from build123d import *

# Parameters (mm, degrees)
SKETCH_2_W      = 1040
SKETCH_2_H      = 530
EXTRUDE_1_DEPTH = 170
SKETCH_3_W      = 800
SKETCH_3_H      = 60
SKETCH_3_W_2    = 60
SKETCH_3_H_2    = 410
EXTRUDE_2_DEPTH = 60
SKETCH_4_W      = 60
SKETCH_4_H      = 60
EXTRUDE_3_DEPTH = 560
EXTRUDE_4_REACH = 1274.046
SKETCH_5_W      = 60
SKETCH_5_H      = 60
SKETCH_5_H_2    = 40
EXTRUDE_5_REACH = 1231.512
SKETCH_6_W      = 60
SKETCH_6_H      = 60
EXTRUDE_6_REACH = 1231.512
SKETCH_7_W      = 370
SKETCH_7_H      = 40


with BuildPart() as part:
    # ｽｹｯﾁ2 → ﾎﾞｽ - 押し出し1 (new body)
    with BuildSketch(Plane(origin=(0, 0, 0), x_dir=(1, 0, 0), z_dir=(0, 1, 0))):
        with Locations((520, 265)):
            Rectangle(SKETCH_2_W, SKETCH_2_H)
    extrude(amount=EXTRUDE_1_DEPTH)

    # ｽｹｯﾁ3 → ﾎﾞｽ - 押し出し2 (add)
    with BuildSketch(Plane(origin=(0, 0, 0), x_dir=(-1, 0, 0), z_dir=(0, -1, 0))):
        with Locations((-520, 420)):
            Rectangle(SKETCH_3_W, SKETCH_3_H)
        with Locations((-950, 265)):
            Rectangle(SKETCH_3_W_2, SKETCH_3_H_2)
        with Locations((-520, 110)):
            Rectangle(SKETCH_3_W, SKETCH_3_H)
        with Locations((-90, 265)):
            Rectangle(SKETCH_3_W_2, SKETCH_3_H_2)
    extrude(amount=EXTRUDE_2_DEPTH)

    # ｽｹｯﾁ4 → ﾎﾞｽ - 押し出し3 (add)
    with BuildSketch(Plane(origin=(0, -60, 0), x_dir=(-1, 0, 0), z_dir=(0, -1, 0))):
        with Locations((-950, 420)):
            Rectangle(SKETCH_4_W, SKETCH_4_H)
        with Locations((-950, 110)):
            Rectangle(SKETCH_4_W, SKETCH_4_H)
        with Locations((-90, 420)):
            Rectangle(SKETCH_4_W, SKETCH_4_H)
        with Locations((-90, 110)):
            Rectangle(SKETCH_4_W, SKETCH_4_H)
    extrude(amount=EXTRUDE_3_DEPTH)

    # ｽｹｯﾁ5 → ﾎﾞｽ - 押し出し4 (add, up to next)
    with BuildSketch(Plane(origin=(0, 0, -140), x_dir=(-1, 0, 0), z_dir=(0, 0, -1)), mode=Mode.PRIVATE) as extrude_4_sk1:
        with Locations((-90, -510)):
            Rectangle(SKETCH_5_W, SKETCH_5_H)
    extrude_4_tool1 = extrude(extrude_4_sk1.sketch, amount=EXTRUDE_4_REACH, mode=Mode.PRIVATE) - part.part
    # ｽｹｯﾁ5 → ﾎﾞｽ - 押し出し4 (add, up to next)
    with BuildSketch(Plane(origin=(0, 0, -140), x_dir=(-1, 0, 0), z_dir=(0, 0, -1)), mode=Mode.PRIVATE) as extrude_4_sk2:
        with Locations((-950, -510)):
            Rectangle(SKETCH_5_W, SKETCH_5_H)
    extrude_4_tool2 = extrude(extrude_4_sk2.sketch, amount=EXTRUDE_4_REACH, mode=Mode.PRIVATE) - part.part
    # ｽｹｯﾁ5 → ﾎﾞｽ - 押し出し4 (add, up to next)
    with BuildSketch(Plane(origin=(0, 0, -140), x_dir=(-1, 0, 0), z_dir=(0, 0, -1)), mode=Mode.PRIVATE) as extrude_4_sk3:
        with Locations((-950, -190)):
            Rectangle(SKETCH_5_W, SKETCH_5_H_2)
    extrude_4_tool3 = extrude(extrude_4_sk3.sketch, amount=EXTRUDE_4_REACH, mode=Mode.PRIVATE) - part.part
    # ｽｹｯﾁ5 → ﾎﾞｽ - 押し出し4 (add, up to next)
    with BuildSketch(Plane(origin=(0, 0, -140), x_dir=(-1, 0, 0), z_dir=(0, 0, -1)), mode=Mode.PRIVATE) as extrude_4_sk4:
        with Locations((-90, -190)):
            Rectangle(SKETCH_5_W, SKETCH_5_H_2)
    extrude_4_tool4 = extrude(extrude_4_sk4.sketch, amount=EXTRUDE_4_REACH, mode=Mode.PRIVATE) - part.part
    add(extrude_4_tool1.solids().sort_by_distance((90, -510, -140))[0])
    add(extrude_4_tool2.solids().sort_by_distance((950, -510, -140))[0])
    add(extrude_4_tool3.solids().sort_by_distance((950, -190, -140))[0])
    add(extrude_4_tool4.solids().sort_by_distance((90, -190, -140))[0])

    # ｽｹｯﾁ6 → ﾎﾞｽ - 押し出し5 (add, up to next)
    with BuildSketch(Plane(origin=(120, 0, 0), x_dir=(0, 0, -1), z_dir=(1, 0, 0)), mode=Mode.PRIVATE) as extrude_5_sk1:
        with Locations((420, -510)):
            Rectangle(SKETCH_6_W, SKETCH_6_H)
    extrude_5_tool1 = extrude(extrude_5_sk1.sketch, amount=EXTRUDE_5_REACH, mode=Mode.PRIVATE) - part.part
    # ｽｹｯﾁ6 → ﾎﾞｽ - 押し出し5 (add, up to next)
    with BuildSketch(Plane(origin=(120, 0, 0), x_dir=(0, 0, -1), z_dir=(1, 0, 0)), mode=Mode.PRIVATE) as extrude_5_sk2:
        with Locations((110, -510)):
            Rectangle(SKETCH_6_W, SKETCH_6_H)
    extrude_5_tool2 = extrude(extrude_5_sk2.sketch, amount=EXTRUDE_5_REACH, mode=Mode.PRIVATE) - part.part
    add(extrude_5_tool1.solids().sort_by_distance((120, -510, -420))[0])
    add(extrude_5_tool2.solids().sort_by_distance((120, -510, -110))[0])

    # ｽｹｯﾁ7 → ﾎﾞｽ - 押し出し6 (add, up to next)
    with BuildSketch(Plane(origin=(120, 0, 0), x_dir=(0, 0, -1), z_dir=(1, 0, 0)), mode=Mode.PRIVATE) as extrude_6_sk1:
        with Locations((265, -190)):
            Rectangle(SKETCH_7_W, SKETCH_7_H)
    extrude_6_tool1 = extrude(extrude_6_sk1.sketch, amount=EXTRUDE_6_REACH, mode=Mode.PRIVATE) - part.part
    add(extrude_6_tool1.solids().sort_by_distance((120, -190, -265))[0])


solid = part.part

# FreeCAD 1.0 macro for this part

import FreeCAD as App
import Part
import Sketcher
Q = App.Units.Quantity


def add_polygon(sketch, points):
    """Adds a closed chain of lines whose ends are joined by coincident constraints."""
    first, n = sketch.GeometryCount, len(points)
    for a, b in zip(points, points[1:] + points[:1]):
        sketch.addGeometry(Part.LineSegment(App.Vector(*a, 0), App.Vector(*b, 0)), False)
    for i in range(n):
        sketch.addConstraint(Sketcher.Constraint("Coincident", first + i, 2, first + (i + 1) % n, 1))

doc = App.newDocument("Part")
params = doc.addObject("Spreadsheet::Sheet", "Params")
for row, (alias, value) in enumerate([
    ("sketch1_width", "1040 mm"),
    ("sketch1_height", "530 mm"),
    ("pad1_length", "170 mm"),
    ("sketch2_width", "800 mm"),
    ("sketch2_width2", "60 mm"),
    ("sketch2_height", "20 mm"),
    ("sketch2_height2", "410 mm"),
    ("sketch2_height3", "250 mm"),
    ("pad2_length", "60 mm"),
    ("sketch3_width", "60 mm"),
    ("pad3_length", "560 mm"),
    ("sketch4_width", "60 mm"),
    ("sketch5_width", "60 mm"),
    ("sketch6_width", "60 mm"),
    ("sketch6_height", "40 mm"),
    ("sketch7_width", "60 mm"),
    ("sketch7_height", "40 mm"),
    ("sketch8_width", "60 mm"),
    ("sketch9_width", "60 mm"),
    ("sketch10_width", "40 mm"),
    ("sketch10_height", "370 mm"),
], start=1):
    params.set(f"A{row}", alias)
    params.set(f"B{row}", "=" + value)
    params.setAlias(f"B{row}", alias)

body = doc.addObject("PartDesign::Body", "Body")

sketch1 = body.newObject("Sketcher::SketchObject", "Sketch")
sketch1.AttachmentSupport = (doc.getObject("XZ_Plane"), [""])
sketch1.MapMode = "FlatFace"
add_polygon(sketch1, [(0, -530), (0, 0), (1040, 0), (1040, -530)])
sketch1.addConstraint([
    Sketcher.Constraint("Vertical", 0),
    Sketcher.Constraint("Horizontal", 1),
    Sketcher.Constraint("Vertical", 2),
    Sketcher.Constraint("Horizontal", 3),
    Sketcher.Constraint("Coincident", 0, 2, -1, 1),
    Sketcher.Constraint("DistanceX", 1, 1, 1, 2, Q("1040 mm")),
    Sketcher.Constraint("DistanceY", 0, 1, 0, 2, Q("530 mm")),
])
sketch1.setExpression("Constraints[9]", "Params.sketch1_width")
sketch1.setExpression("Constraints[10]", "Params.sketch1_height")
pad1 = body.newObject("PartDesign::Pad", "Pad")
pad1.Profile = sketch1
pad1.setExpression("Length", "Params.pad1_length")
pad1.Reversed = True

sketch2 = body.newObject("Sketcher::SketchObject", "Sketch001")
sketch2.AttachmentSupport = (doc.getObject("XZ_Plane"), [""])
sketch2.MapMode = "FlatFace"
add_polygon(sketch2, [(120, -450), (920, -450), (920, -470), (980, -470), (980, -60), (920, -60), (920, -80), (120, -80), (120, -60), (60, -60), (60, -470), (120, -470)])
add_polygon(sketch2, [(920, -390), (120, -390), (120, -140), (920, -140)])
sketch2.addConstraint([
    Sketcher.Constraint("Horizontal", 0),
    Sketcher.Constraint("Vertical", 1),
    Sketcher.Constraint("Horizontal", 2),
    Sketcher.Constraint("Vertical", 3),
    Sketcher.Constraint("Horizontal", 4),
    Sketcher.Constraint("Vertical", 5),
    Sketcher.Constraint("Horizontal", 6),
    Sketcher.Constraint("Vertical", 7),
    Sketcher.Constraint("Horizontal", 8),
    Sketcher.Constraint("Vertical", 9),
    Sketcher.Constraint("Horizontal", 10),
    Sketcher.Constraint("Vertical", 11),
    Sketcher.Constraint("Horizontal", 12),
    Sketcher.Constraint("Vertical", 13),
    Sketcher.Constraint("Horizontal", 14),
    Sketcher.Constraint("Vertical", 15),
    Sketcher.Constraint("Horizontal", 4, 2, 7, 2),
    Sketcher.Constraint("Horizontal", 2, 2, 9, 2),
    Sketcher.Constraint("Vertical", 1, 2, 4, 2),
    Sketcher.Constraint("Vertical", 7, 2, 10, 2),
    Sketcher.Constraint("Vertical", 11, 2, 12, 2),
    Sketcher.Constraint("Vertical", 5, 2, 14, 2),
    Sketcher.Constraint("Equal", 4, 8),
    Sketcher.Constraint("Equal", 1, 5),
    Sketcher.Constraint("DistanceX", 0, 1, 0, 2, Q("800 mm")),
    Sketcher.Constraint("DistanceX", 2, 1, 2, 2, Q("60 mm")),
    Sketcher.Constraint("DistanceY", 1, 2, 1, 1, Q("20 mm")),
    Sketcher.Constraint("DistanceY", 3, 1, 3, 2, Q("410 mm")),
    Sketcher.Constraint("DistanceY", 13, 1, 13, 2, Q("250 mm")),
    Sketcher.Constraint("DistanceX", -1, 1, 0, 2, Q("920 mm")),
    Sketcher.Constraint("DistanceY", 0, 2, -1, 1, Q("450 mm")),
    Sketcher.Constraint("DistanceY", 12, 2, -1, 1, Q("390 mm")),
])
sketch2.setExpression("Constraints[40]", "Params.sketch2_width")
sketch2.setExpression("Constraints[41]", "Params.sketch2_width2")
sketch2.setExpression("Constraints[42]", "Params.sketch2_height")
sketch2.setExpression("Constraints[43]", "Params.sketch2_height2")
sketch2.setExpression("Constraints[44]", "Params.sketch2_height3")
pad2 = body.newObject("PartDesign::Pad", "Pad001")
pad2.Profile = sketch2
pad2.setExpression("Length", "Params.pad2_length")

sketch3 = body.newObject("Sketcher::SketchObject", "Sketch002")
sketch3.AttachmentSupport = (doc.getObject("XZ_Plane"), [""])
sketch3.MapMode = "FlatFace"
sketch3.AttachmentOffset = App.Placement(App.Vector(0, 0, 60), App.Rotation())
add_polygon(sketch3, [(980, -450), (980, -390), (920, -390), (920, -450)])
add_polygon(sketch3, [(980, -140), (980, -80), (920, -80), (920, -140)])
add_polygon(sketch3, [(120, -450), (120, -390), (60, -390), (60, -450)])
add_polygon(sketch3, [(120, -140), (120, -80), (60, -80), (60, -140)])
sketch3.addConstraint([
    Sketcher.Constraint("Vertical", 0),
    Sketcher.Constraint("Horizontal", 1),
    Sketcher.Constraint("Vertical", 2),
    Sketcher.Constraint("Horizontal", 3),
    Sketcher.Constraint("Vertical", 4),
    Sketcher.Constraint("Horizontal", 5),
    Sketcher.Constraint("Vertical", 6),
    Sketcher.Constraint("Horizontal", 7),
    Sketcher.Constraint("Vertical", 8),
    Sketcher.Constraint("Horizontal", 9),
    Sketcher.Constraint("Vertical", 10),
    Sketcher.Constraint("Horizontal", 11),
    Sketcher.Constraint("Vertical", 12),
    Sketcher.Constraint("Horizontal", 13),
    Sketcher.Constraint("Vertical", 14),
    Sketcher.Constraint("Horizontal", 15),
    Sketcher.Constraint("Horizontal", 1, 2, 8, 2),
    Sketcher.Constraint("Horizontal", 3, 2, 10, 2),
    Sketcher.Constraint("Horizontal", 5, 2, 12, 2),
    Sketcher.Constraint("Horizontal", 7, 2, 14, 2),
    Sketcher.Constraint("Vertical", 3, 2, 4, 2),
    Sketcher.Constraint("Vertical", 2, 2, 5, 2),
    Sketcher.Constraint("Vertical", 11, 2, 12, 2),
    Sketcher.Constraint("Vertical", 10, 2, 13, 2),
    Sketcher.Constraint("Equal", 7, 9),
    Sketcher.Constraint("Equal", 15, 0),
    Sketcher.Constraint("Equal", 2, 4),
    Sketcher.Constraint("DistanceX", 1, 2, 1, 1, Q("60 mm")),
    Sketcher.Constraint("DistanceX", -1, 1, 0, 2, Q("980 mm")),
    Sketcher.Constraint("DistanceY", 0, 2, -1, 1, Q("390 mm")),
    Sketcher.Constraint("DistanceY", 4, 2, -1, 1, Q("80 mm")),
    Sketcher.Constraint("DistanceX", -1, 1, 8, 2, Q("120 mm")),
])
sketch3.setExpression("Constraints[43]", "Params.sketch3_width")
pad3 = body.newObject("PartDesign::Pad", "Pad002")
pad3.Profile = sketch3
pad3.setExpression("Length", "Params.pad3_length")

sketch4 = body.newObject("Sketcher::SketchObject", "Sketch003")
sketch4.AttachmentSupport = (doc.getObject("XY_Plane"), [""])
sketch4.MapMode = "FlatFace"
sketch4.AttachmentOffset = App.Placement(App.Vector(0, 0, -140), App.Rotation())
add_polygon(sketch4, [(120, -480), (120, -540), (60, -540), (60, -480)])
sketch4.addConstraint([
    Sketcher.Constraint("Vertical", 0),
    Sketcher.Constraint("Horizontal", 1),
    Sketcher.Constraint("Vertical", 2),
    Sketcher.Constraint("Horizontal", 3),
    Sketcher.Constraint("Equal", 3, 0),
    Sketcher.Constraint("DistanceX", 1, 2, 1, 1, Q("60 mm")),
    Sketcher.Constraint("DistanceX", -1, 1, 0, 2, Q("120 mm")),
    Sketcher.Constraint("DistanceY", 0, 2, -1, 1, Q("540 mm")),
])
sketch4.setExpression("Constraints[9]", "Params.sketch4_width")
pad4 = body.newObject("PartDesign::Pad", "Pad003")
pad4.Profile = sketch4
pad4.Type = "UpToFirst"
pad4.Reversed = True

sketch5 = body.newObject("Sketcher::SketchObject", "Sketch004")
sketch5.AttachmentSupport = (doc.getObject("XY_Plane"), [""])
sketch5.MapMode = "FlatFace"
sketch5.AttachmentOffset = App.Placement(App.Vector(0, 0, -140), App.Rotation())
add_polygon(sketch5, [(980, -480), (980, -540), (920, -540), (920, -480)])
sketch5.addConstraint([
    Sketcher.Constraint("Vertical", 0),
    Sketcher.Constraint("Horizontal", 1),
    Sketcher.Constraint("Vertical", 2),
    Sketcher.Constraint("Horizontal", 3),
    Sketcher.Constraint("Equal", 3, 0),
    Sketcher.Constraint("DistanceX", 1, 2, 1, 1, Q("60 mm")),
    Sketcher.Constraint("DistanceX", -1, 1, 0, 2, Q("980 mm")),
    Sketcher.Constraint("DistanceY", 0, 2, -1, 1, Q("540 mm")),
])
sketch5.setExpression("Constraints[9]", "Params.sketch5_width")
pad5 = body.newObject("PartDesign::Pad", "Pad004")
pad5.Profile = sketch5
pad5.Type = "UpToFirst"
pad5.Reversed = True

sketch6 = body.newObject("Sketcher::SketchObject", "Sketch005")
sketch6.AttachmentSupport = (doc.getObject("XY_Plane"), [""])
sketch6.MapMode = "FlatFace"
sketch6.AttachmentOffset = App.Placement(App.Vector(0, 0, -140), App.Rotation())
add_polygon(sketch6, [(980, -170), (980, -210), (920, -210), (920, -170)])
sketch6.addConstraint([
    Sketcher.Constraint("Vertical", 0),
    Sketcher.Constraint("Horizontal", 1),
    Sketcher.Constraint("Vertical", 2),
    Sketcher.Constraint("Horizontal", 3),
    Sketcher.Constraint("DistanceX", 1, 2, 1, 1, Q("60 mm")),
    Sketcher.Constraint("DistanceY", 0, 2, 0, 1, Q("40 mm")),
    Sketcher.Constraint("DistanceX", -1, 1, 0, 2, Q("980 mm")),
    Sketcher.Constraint("DistanceY", 0, 2, -1, 1, Q("210 mm")),
])
sketch6.setExpression("Constraints[8]", "Params.sketch6_width")
sketch6.setExpression("Constraints[9]", "Params.sketch6_height")
pad6 = body.newObject("PartDesign::Pad", "Pad005")
pad6.Profile = sketch6
pad6.Type = "UpToFirst"
pad6.Reversed = True

sketch7 = body.newObject("Sketcher::SketchObject", "Sketch006")
sketch7.AttachmentSupport = (doc.getObject("XY_Plane"), [""])
sketch7.MapMode = "FlatFace"
sketch7.AttachmentOffset = App.Placement(App.Vector(0, 0, -140), App.Rotation())
add_polygon(sketch7, [(120, -170), (120, -210), (60, -210), (60, -170)])
sketch7.addConstraint([
    Sketcher.Constraint("Vertical", 0),
    Sketcher.Constraint("Horizontal", 1),
    Sketcher.Constraint("Vertical", 2),
    Sketcher.Constraint("Horizontal", 3),
    Sketcher.Constraint("DistanceX", 1, 2, 1, 1, Q("60 mm")),
    Sketcher.Constraint("DistanceY", 0, 2, 0, 1, Q("40 mm")),
    Sketcher.Constraint("DistanceX", -1, 1, 0, 2, Q("120 mm")),
    Sketcher.Constraint("DistanceY", 0, 2, -1, 1, Q("210 mm")),
])
sketch7.setExpression("Constraints[8]", "Params.sketch7_width")
sketch7.setExpression("Constraints[9]", "Params.sketch7_height")
pad7 = body.newObject("PartDesign::Pad", "Pad006")
pad7.Profile = sketch7
pad7.Type = "UpToFirst"
pad7.Reversed = True

sketch8 = body.newObject("Sketcher::SketchObject", "Sketch007")
sketch8.AttachmentSupport = (doc.getObject("YZ_Plane"), [""])
sketch8.MapMode = "FlatFace"
sketch8.AttachmentOffset = App.Placement(App.Vector(0, 0, 120), App.Rotation())
add_polygon(sketch8, [(-480, -390), (-540, -390), (-540, -450), (-480, -450)])
sketch8.addConstraint([
    Sketcher.Constraint("Horizontal", 0),
    Sketcher.Constraint("Vertical", 1),
    Sketcher.Constraint("Horizontal", 2),
    Sketcher.Constraint("Vertical", 3),
    Sketcher.Constraint("Equal", 2, 1),
    Sketcher.Constraint("DistanceX", 0, 2, 0, 1, Q("60 mm")),
    Sketcher.Constraint("DistanceX", 0, 2, -1, 1, Q("540 mm")),
    Sketcher.Constraint("DistanceY", 0, 2, -1, 1, Q("390 mm")),
])
sketch8.setExpression("Constraints[9]", "Params.sketch8_width")
pad8 = body.newObject("PartDesign::Pad", "Pad007")
pad8.Profile = sketch8
pad8.Type = "UpToFirst"

sketch9 = body.newObject("Sketcher::SketchObject", "Sketch008")
sketch9.AttachmentSupport = (doc.getObject("YZ_Plane"), [""])
sketch9.MapMode = "FlatFace"
sketch9.AttachmentOffset = App.Placement(App.Vector(0, 0, 120), App.Rotation())
add_polygon(sketch9, [(-480, -80), (-540, -80), (-540, -140), (-480, -140)])
sketch9.addConstraint([
    Sketcher.Constraint("Horizontal", 0),
    Sketcher.Constraint("Vertical", 1),
    Sketcher.Constraint("Horizontal", 2),
    Sketcher.Constraint("Vertical", 3),
    Sketcher.Constraint("Equal", 2, 1),
    Sketcher.Constraint("DistanceX", 0, 2, 0, 1, Q("60 mm")),
    Sketcher.Constraint("DistanceX", 0, 2, -1, 1, Q("540 mm")),
    Sketcher.Constraint("DistanceY", 0, 2, -1, 1, Q("80 mm")),
])
sketch9.setExpression("Constraints[9]", "Params.sketch9_width")
pad9 = body.newObject("PartDesign::Pad", "Pad008")
pad9.Profile = sketch9
pad9.Type = "UpToFirst"

sketch10 = body.newObject("Sketcher::SketchObject", "Sketch009")
sketch10.AttachmentSupport = (doc.getObject("YZ_Plane"), [""])
sketch10.MapMode = "FlatFace"
sketch10.AttachmentOffset = App.Placement(App.Vector(0, 0, 120), App.Rotation())
add_polygon(sketch10, [(-170, -80), (-210, -80), (-210, -450), (-170, -450)])
sketch10.addConstraint([
    Sketcher.Constraint("Horizontal", 0),
    Sketcher.Constraint("Vertical", 1),
    Sketcher.Constraint("Horizontal", 2),
    Sketcher.Constraint("Vertical", 3),
    Sketcher.Constraint("DistanceX", 0, 2, 0, 1, Q("40 mm")),
    Sketcher.Constraint("DistanceY", 1, 2, 1, 1, Q("370 mm")),
    Sketcher.Constraint("DistanceX", 0, 2, -1, 1, Q("210 mm")),
    Sketcher.Constraint("DistanceY", 0, 2, -1, 1, Q("80 mm")),
])
sketch10.setExpression("Constraints[8]", "Params.sketch10_width")
sketch10.setExpression("Constraints[9]", "Params.sketch10_height")
pad10 = body.newObject("PartDesign::Pad", "Pad009")
pad10.Profile = sketch10
pad10.Type = "UpToFirst"

doc.recompute()
